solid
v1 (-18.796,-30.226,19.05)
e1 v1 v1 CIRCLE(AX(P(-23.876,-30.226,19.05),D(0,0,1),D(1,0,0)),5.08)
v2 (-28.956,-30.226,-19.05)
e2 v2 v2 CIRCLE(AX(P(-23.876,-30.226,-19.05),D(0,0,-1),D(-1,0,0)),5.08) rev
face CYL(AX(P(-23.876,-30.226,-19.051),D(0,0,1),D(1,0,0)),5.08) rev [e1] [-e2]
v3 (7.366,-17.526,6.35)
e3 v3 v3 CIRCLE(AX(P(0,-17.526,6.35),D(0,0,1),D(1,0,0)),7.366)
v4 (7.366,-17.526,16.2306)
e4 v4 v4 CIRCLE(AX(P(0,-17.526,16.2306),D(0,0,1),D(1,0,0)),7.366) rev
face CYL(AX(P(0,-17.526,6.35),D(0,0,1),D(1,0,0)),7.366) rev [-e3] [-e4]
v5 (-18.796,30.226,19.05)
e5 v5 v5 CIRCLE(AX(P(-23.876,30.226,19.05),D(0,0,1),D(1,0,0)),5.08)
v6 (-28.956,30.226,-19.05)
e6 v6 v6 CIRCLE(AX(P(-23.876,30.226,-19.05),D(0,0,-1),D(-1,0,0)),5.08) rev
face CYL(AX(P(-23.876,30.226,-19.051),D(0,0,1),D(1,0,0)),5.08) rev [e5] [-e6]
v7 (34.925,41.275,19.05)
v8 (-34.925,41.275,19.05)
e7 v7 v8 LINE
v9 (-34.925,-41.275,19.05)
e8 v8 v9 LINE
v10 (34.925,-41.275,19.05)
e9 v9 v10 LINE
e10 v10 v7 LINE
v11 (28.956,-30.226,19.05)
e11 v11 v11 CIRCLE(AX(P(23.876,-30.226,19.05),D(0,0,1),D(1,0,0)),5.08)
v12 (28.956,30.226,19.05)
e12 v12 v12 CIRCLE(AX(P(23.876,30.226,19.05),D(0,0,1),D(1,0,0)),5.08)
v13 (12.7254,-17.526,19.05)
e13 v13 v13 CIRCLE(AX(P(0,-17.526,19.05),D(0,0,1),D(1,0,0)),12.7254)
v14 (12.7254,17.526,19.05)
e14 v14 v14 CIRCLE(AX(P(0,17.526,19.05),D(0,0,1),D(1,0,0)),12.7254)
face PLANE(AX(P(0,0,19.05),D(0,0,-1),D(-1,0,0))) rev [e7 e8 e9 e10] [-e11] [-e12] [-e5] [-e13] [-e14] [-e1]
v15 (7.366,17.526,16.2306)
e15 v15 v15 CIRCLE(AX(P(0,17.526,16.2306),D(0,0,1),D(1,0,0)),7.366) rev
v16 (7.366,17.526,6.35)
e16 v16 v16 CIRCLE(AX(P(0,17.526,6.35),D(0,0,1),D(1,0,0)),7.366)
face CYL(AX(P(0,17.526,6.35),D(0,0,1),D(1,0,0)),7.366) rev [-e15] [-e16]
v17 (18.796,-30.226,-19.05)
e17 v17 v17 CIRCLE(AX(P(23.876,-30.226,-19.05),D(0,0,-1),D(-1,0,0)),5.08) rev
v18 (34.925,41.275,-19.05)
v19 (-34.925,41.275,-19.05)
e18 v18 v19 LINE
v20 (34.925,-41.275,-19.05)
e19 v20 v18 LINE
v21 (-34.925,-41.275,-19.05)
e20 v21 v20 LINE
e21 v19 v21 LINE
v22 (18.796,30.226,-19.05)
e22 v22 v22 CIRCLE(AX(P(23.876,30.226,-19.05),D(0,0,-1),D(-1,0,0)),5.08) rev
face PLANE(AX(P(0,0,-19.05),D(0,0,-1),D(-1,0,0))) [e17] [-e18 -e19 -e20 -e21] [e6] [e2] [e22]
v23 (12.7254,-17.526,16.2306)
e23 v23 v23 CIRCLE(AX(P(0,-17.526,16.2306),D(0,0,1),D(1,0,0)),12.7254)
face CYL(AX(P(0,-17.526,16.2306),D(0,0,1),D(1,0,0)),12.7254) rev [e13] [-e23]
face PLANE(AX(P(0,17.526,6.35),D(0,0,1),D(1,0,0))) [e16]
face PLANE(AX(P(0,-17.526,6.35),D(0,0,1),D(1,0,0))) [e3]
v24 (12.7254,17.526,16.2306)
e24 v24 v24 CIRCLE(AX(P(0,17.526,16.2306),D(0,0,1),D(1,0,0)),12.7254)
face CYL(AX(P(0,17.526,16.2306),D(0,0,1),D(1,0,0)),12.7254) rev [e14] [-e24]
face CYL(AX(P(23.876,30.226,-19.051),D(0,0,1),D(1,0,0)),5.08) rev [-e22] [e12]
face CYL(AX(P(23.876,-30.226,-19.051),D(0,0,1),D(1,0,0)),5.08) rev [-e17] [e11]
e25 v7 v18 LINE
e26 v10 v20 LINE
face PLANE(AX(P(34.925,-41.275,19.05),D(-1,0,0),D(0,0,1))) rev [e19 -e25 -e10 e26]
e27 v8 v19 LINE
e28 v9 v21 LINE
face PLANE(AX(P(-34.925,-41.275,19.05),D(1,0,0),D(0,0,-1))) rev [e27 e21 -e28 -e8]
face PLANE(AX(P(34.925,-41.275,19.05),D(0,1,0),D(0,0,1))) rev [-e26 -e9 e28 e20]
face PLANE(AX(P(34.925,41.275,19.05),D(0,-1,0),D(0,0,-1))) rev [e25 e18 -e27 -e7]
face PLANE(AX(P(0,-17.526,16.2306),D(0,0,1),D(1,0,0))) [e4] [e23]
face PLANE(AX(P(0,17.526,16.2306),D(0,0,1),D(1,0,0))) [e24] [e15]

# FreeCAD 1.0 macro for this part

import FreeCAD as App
import Part
import Sketcher

V = App.Vector
Q = App.Units.Quantity


def add_polygon(sketch, points):
    """Adds a closed chain of lines whose ends are joined by coincident constraints."""
    first, n = sketch.GeometryCount, len(points)
    for a, b in zip(points, points[1:] + points[:1]):
        sketch.addGeometry(Part.LineSegment(App.Vector(*a, 0), App.Vector(*b, 0)), False)
    for i in range(n):
        sketch.addConstraint(Sketcher.Constraint("Coincident", first + i, 2, first + (i + 1) % n, 1))

doc = App.newDocument("Part")
body = doc.addObject("PartDesign::Body", "Body")

sketch1 = doc.addObject("Sketcher::SketchObject", "Sketch")
body.addObject(sketch1)
sketch1.AttachmentSupport = (doc.XY_Plane, [""])
sketch1.MapMode = "FlatFace"
add_polygon(sketch1, [(-35, -41), (35, -41), (35, 41), (-35, 41)])
sketch1.addConstraint([
    Sketcher.Constraint("Horizontal", 0),
    Sketcher.Constraint("Vertical", 1),
    Sketcher.Constraint("Horizontal", 2),
    Sketcher.Constraint("Vertical", 3),
    Sketcher.Constraint("Symmetric", 0, 2, 2, 2, -1, 1),
    Sketcher.Constraint("DistanceX", 0, 1, 0, 2, Q("2.75 in")),
    Sketcher.Constraint("DistanceY", 1, 1, 1, 2, Q("3.25 in")),
])
pad1 = doc.addObject("PartDesign::Pad", "Pad")
body.addObject(pad1)
pad1.Profile = sketch1
pad1.Length = Q("1.5 in")
pad1.Midplane = True

sketch2 = doc.addObject("Sketcher::SketchObject", "Sketch001")
body.addObject(sketch2)
sketch2.AttachmentSupport = (doc.XY_Plane, [""])
sketch2.MapMode = "FlatFace"
sketch2.AttachmentOffset = App.Placement(V(0, 0, -0.75 * 25.4), App.Rotation())
sketch2.addGeometry(Part.Circle(V(24, -30, 0), V(0, 0, 1), 5), False)
sketch2.addConstraint([
    Sketcher.Constraint("Diameter", 0, Q("0.4 in")),
    Sketcher.Constraint("DistanceX", -1, 1, 0, 3, Q("0.94 in")),
    Sketcher.Constraint("DistanceY", 0, 3, -1, 1, Q("1.19 in")),
])
pocket1 = doc.addObject("PartDesign::Pocket", "Pocket")
body.addObject(pocket1)
pocket1.Profile = sketch2
pocket1.Length = Q("1.5 in")
pocket1.Reversed = True

sketch3 = doc.addObject("Sketcher::SketchObject", "Sketch002")
body.addObject(sketch3)
sketch3.AttachmentSupport = (doc.XY_Plane, [""])
sketch3.MapMode = "FlatFace"
sketch3.AttachmentOffset = App.Placement(V(0, 0, -0.75 * 25.4), App.Rotation())
sketch3.addGeometry([
    Part.Circle(V(24, 30, 0), V(0, 0, 1), 5),
    Part.Circle(V(-24, -30, 0), V(0, 0, 1), 5),
    Part.Circle(V(-24, 30, 0), V(0, 0, 1), 5),
], False)
sketch3.addConstraint([
    Sketcher.Constraint("Equal", 0, 1),
    Sketcher.Constraint("Equal", 1, 2),
    Sketcher.Constraint("Symmetric", 0, 3, 1, 3, -1, 1),
    Sketcher.Constraint("Symmetric", 0, 3, 2, 3, -2),
    Sketcher.Constraint("Diameter", 0, Q("0.4 in")),
    Sketcher.Constraint("DistanceX", -1, 1, 0, 3, Q("0.94 in")),
    Sketcher.Constraint("DistanceY", -1, 1, 0, 3, Q("1.19 in")),
])
pocket2 = doc.addObject("PartDesign::Pocket", "Pocket001")
body.addObject(pocket2)
pocket2.Profile = sketch3
pocket2.Length = Q("1.5 in")
pocket2.Reversed = True

sketch4 = doc.addObject("Sketcher::SketchObject", "Sketch003")
body.addObject(sketch4)
sketch4.AttachmentSupport = (doc.XY_Plane, [""])
sketch4.MapMode = "FlatFace"
sketch4.AttachmentOffset = App.Placement(V(0, 0, 0.75 * 25.4), App.Rotation())
sketch4.addGeometry(Part.Circle(V(0, -18, 0), V(0, 0, 1), 7), False)
sketch4.addConstraint([
    Sketcher.Constraint("PointOnObject", 0, 3, -2),
    Sketcher.Constraint("Diameter", 0, Q("0.58 in")),
    Sketcher.Constraint("DistanceY", 0, 3, -1, 1, Q("0.69 in")),
])
pocket3 = doc.addObject("PartDesign::Pocket", "Pocket002")
body.addObject(pocket3)
pocket3.Profile = sketch4
pocket3.Length = Q("0.5 in")

sketch5 = doc.addObject("Sketcher::SketchObject", "Sketch004")
body.addObject(sketch5)
sketch5.AttachmentSupport = (doc.XY_Plane, [""])
sketch5.MapMode = "FlatFace"
sketch5.AttachmentOffset = App.Placement(V(0, 0, 0.75 * 25.4), App.Rotation())
sketch5.addGeometry(Part.Circle(V(0, -18, 0), V(0, 0, 1), 13), False)
sketch5.addConstraint([
    Sketcher.Constraint("PointOnObject", 0, 3, -2),
    Sketcher.Constraint("Diameter", 0, Q("1.002 in")),
    Sketcher.Constraint("DistanceY", 0, 3, -1, 1, Q("0.69 in")),
])
pocket4 = doc.addObject("PartDesign::Pocket", "Pocket003")
body.addObject(pocket4)
pocket4.Profile = sketch5
pocket4.Length = Q("0.111 in")

sketch6 = doc.addObject("Sketcher::SketchObject", "Sketch005")
body.addObject(sketch6)
sketch6.AttachmentSupport = (doc.XY_Plane, [""])
sketch6.MapMode = "FlatFace"
sketch6.AttachmentOffset = App.Placement(V(0, 0, 0.75 * 25.4), App.Rotation())
sketch6.addGeometry(Part.Circle(V(0, 18, 0), V(0, 0, 1), 7), False)
sketch6.addConstraint([
    Sketcher.Constraint("PointOnObject", 0, 3, -2),
    Sketcher.Constraint("Diameter", 0, Q("0.58 in")),
    Sketcher.Constraint("DistanceY", -1, 1, 0, 3, Q("0.69 in")),
])
pocket5 = doc.addObject("PartDesign::Pocket", "Pocket004")
body.addObject(pocket5)
pocket5.Profile = sketch6
pocket5.Length = Q("0.5 in")

sketch7 = doc.addObject("Sketcher::SketchObject", "Sketch006")
body.addObject(sketch7)
sketch7.AttachmentSupport = (doc.XY_Plane, [""])
sketch7.MapMode = "FlatFace"
sketch7.AttachmentOffset = App.Placement(V(0, 0, 0.75 * 25.4), App.Rotation())
sketch7.addGeometry(Part.Circle(V(0, 18, 0), V(0, 0, 1), 13), False)
sketch7.addConstraint([
    Sketcher.Constraint("PointOnObject", 0, 3, -2),
    Sketcher.Constraint("Diameter", 0, Q("1.002 in")),
    Sketcher.Constraint("DistanceY", -1, 1, 0, 3, Q("0.69 in")),
])
pocket6 = doc.addObject("PartDesign::Pocket", "Pocket005")
body.addObject(pocket6)
pocket6.Profile = sketch7
pocket6.Length = Q("0.111 in")

doc.recompute()
